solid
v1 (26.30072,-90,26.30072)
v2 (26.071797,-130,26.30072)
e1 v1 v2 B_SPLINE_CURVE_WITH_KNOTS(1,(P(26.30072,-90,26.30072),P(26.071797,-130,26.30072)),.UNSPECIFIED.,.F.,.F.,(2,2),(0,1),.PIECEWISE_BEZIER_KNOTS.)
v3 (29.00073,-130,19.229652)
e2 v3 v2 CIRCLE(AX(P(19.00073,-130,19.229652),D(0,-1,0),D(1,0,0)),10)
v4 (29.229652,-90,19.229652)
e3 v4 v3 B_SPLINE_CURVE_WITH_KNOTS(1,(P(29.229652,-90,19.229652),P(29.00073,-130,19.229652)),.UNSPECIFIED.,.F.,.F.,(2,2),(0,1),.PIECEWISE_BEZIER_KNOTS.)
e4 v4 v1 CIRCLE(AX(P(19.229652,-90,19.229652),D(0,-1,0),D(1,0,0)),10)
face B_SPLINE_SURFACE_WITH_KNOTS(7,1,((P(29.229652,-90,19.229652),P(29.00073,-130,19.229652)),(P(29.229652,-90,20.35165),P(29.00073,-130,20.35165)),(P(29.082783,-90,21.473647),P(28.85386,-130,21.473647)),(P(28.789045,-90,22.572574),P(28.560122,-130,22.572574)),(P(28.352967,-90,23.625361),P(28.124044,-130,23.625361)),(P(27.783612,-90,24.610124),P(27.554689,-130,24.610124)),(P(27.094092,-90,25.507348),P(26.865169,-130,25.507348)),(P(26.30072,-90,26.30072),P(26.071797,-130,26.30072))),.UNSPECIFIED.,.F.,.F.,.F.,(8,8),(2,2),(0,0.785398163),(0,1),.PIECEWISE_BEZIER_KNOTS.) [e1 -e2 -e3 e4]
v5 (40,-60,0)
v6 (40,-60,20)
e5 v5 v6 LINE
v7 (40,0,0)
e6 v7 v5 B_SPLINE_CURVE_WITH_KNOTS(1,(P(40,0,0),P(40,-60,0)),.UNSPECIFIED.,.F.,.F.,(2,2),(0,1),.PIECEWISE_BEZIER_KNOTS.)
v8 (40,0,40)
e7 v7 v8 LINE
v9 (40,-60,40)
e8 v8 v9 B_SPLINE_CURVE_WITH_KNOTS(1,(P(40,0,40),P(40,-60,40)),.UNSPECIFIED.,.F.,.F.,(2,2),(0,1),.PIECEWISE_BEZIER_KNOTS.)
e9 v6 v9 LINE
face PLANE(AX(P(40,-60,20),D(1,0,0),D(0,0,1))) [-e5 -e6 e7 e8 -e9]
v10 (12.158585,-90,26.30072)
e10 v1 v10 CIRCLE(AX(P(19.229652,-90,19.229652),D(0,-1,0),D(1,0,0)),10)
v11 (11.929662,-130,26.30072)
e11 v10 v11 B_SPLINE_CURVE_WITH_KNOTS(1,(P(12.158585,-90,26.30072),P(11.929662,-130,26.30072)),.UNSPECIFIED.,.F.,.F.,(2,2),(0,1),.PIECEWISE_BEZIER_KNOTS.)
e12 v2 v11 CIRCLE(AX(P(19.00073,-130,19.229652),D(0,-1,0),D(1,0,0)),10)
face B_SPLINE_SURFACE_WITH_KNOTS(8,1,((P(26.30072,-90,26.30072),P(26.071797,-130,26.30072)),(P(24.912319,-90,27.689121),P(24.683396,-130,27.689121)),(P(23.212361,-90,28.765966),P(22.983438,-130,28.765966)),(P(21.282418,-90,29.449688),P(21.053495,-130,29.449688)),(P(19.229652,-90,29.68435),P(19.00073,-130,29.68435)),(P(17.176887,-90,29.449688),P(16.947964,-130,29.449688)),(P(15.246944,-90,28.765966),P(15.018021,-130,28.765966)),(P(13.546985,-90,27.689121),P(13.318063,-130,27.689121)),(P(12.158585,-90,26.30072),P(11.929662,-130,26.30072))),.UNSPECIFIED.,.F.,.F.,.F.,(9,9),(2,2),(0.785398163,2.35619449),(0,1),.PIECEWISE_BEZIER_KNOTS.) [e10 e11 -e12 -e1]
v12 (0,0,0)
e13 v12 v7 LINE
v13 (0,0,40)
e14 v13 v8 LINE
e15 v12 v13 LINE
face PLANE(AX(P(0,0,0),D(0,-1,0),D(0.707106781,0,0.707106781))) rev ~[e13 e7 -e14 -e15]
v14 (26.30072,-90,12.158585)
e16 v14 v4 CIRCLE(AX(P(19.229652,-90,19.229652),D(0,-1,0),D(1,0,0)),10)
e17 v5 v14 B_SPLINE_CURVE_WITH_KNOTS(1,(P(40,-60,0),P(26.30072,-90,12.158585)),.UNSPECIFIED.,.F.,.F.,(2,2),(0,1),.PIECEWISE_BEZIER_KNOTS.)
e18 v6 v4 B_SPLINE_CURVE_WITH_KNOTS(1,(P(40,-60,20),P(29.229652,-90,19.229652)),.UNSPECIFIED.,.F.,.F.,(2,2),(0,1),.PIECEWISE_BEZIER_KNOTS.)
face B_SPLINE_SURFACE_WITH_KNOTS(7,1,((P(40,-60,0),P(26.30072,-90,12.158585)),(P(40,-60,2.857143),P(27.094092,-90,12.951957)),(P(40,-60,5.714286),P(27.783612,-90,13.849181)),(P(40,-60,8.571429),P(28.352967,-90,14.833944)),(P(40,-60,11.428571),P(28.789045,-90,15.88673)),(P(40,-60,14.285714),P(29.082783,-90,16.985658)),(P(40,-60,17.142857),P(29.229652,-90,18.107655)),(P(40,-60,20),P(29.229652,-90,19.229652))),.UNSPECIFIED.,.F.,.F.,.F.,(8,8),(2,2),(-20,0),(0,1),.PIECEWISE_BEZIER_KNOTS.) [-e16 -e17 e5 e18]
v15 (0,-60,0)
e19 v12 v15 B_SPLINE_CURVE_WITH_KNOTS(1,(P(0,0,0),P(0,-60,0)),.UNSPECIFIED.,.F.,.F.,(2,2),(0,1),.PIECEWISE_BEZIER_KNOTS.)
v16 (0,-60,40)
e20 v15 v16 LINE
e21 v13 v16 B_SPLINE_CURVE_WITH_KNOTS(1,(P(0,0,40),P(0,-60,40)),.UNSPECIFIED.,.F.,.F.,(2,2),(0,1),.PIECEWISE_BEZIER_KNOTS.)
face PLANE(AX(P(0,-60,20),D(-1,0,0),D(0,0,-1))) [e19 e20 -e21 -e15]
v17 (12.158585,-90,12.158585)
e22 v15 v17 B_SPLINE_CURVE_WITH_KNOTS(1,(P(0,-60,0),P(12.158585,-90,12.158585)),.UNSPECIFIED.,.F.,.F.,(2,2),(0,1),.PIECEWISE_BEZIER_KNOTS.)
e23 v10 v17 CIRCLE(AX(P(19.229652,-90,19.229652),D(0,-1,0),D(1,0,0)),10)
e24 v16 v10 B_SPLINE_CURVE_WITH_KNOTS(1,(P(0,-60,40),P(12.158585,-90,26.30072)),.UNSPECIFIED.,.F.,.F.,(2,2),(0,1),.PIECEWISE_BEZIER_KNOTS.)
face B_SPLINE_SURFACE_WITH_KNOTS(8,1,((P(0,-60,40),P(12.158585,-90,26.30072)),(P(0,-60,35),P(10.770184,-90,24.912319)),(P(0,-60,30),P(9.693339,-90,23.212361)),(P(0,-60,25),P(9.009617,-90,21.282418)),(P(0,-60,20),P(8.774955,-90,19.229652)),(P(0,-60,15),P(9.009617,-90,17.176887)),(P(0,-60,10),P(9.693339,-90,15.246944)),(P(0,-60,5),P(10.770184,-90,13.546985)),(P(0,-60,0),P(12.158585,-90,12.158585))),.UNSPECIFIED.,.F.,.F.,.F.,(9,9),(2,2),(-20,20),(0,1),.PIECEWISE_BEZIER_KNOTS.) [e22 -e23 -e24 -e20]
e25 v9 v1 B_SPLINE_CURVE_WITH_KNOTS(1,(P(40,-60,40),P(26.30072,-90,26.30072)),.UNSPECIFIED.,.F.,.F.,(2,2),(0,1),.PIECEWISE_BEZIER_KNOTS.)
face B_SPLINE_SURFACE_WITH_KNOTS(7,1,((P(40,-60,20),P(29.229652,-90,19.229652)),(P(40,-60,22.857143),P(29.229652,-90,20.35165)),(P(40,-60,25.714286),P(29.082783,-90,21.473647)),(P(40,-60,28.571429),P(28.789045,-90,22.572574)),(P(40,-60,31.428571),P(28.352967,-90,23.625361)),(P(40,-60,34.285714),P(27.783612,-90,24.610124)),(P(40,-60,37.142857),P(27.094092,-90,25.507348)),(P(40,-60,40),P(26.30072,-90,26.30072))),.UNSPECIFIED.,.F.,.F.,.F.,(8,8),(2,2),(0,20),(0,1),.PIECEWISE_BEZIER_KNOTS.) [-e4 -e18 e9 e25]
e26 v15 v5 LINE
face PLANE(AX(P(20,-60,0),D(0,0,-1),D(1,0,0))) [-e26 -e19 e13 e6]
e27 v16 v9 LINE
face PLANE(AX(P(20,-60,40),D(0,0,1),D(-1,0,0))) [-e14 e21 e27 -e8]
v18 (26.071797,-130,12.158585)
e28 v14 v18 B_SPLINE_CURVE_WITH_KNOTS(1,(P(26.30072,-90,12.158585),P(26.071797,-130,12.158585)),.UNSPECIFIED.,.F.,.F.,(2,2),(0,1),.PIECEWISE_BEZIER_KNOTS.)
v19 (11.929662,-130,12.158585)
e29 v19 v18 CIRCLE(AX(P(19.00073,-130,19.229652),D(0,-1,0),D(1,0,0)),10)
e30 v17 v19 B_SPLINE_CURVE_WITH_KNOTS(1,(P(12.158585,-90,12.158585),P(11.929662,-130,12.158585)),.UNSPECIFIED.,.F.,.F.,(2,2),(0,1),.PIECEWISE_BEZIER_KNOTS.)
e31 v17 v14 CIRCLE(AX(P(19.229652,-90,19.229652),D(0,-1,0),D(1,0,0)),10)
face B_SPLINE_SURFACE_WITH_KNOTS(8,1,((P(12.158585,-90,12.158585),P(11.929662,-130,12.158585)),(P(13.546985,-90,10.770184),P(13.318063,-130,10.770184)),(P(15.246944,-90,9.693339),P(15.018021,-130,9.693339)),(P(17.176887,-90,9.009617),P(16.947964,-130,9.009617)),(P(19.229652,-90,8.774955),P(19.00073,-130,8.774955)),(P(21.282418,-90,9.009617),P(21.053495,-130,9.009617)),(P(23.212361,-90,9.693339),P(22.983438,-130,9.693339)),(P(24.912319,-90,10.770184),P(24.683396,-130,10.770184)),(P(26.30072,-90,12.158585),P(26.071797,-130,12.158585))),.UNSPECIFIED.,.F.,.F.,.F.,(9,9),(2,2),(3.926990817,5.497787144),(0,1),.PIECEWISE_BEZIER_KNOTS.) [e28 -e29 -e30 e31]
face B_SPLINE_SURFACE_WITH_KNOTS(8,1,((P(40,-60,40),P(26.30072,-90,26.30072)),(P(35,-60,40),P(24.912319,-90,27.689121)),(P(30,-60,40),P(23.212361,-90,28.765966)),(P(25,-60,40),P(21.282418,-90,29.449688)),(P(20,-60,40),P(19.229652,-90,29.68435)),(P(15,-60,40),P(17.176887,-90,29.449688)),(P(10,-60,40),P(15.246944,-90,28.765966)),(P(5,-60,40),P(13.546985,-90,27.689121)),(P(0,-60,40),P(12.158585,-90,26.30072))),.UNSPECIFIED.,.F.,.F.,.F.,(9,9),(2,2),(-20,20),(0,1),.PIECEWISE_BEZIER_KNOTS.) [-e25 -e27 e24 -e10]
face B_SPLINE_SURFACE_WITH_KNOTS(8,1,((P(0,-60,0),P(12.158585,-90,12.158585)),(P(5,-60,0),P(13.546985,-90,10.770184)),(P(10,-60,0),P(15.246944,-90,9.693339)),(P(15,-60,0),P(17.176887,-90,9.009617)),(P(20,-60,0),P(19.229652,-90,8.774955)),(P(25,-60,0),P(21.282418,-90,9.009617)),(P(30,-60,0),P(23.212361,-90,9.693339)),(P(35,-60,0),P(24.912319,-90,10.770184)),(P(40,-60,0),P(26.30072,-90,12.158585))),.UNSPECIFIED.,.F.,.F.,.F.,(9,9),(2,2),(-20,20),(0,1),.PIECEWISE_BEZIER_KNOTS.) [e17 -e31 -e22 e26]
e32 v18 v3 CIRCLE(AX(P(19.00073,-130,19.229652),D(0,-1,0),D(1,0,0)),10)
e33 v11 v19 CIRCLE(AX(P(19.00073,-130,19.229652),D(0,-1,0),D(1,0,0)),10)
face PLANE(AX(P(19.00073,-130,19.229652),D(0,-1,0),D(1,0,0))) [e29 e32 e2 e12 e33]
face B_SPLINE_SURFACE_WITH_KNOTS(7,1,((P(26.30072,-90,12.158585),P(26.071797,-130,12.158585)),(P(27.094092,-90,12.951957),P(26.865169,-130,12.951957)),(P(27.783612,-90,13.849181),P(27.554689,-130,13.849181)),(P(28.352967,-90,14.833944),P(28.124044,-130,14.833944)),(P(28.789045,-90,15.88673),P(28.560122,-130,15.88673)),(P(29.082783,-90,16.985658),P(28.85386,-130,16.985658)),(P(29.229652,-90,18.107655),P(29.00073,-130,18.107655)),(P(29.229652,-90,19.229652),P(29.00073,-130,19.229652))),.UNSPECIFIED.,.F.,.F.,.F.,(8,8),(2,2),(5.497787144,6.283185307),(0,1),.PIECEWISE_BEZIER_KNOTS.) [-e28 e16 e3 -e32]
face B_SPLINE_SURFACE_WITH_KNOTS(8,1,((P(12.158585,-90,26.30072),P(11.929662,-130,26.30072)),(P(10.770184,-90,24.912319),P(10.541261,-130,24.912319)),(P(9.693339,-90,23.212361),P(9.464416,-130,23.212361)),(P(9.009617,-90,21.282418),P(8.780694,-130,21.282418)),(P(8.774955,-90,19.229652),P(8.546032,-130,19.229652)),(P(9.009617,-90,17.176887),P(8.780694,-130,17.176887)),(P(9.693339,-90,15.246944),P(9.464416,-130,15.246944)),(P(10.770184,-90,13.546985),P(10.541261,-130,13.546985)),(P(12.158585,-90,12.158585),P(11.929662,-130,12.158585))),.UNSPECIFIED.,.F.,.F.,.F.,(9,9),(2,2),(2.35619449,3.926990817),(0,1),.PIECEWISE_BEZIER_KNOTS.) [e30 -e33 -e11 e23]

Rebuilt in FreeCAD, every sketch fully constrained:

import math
import FreeCAD as App
import Part
import Sketcher

V = App.Vector


def add_polygon(sketch, points):
    """Adds a closed chain of lines whose ends are joined by coincident constraints."""
    first, n = sketch.GeometryCount, len(points)
    for a, b in zip(points, points[1:] + points[:1]):
        sketch.addGeometry(Part.LineSegment(App.Vector(*a, 0), App.Vector(*b, 0)), False)
    for i in range(n):
        sketch.addConstraint(Sketcher.Constraint("Coincident", first + i, 2, first + (i + 1) % n, 1))

doc = App.newDocument("Part")
body = doc.addObject("PartDesign::Body", "Body")

# Sketch on XZ plane
sketch1 = body.newObject("Sketcher::SketchObject", "Sketch")
sketch1.AttachmentSupport = (doc.getObject("XZ_Plane"), [""])
sketch1.MapMode = "FlatFace"
add_polygon(sketch1, [(0, 40), (0, 0), (40, 0), (40, 40)])  # lines 0-3
sketch1.addConstraint([
    Sketcher.Constraint("Vertical", 0),
    Sketcher.Constraint("Horizontal", 1),
    Sketcher.Constraint("Vertical", 2),
    Sketcher.Constraint("Horizontal", 3),
    Sketcher.Constraint("Coincident", 0, 2, -1, 1),
    Sketcher.Constraint("Equal", 3, 0),
    Sketcher.Constraint("DistanceX", 1, 1, 1, 2, 40.0),
])

# Sketch on XZ plane
sketch2 = body.newObject("Sketcher::SketchObject", "Sketch001")
sketch2.AttachmentSupport = (doc.getObject("XZ_Plane"), [""])
sketch2.MapMode = "FlatFace"
sketch2.AttachmentOffset = App.Placement(V(0, 0, 60), App.Rotation())
add_polygon(sketch2, [(0, 40), (0, 0), (40, 0), (40, 40)])  # lines 0-3
sketch2.addConstraint([
    Sketcher.Constraint("Vertical", 0),
    Sketcher.Constraint("Horizontal", 1),
    Sketcher.Constraint("Vertical", 2),
    Sketcher.Constraint("Horizontal", 3),
    Sketcher.Constraint("Coincident", 0, 2, -1, 1),
    Sketcher.Constraint("Equal", 3, 0),
    Sketcher.Constraint("DistanceX", 1, 1, 1, 2, 40.0),
])

additiveloft = body.newObject("PartDesign::AdditiveLoft", "AdditiveLoft")
additiveloft.Profile = sketch1
additiveloft.Sections = [sketch2]

# Sketch on XZ plane
sketch3 = body.newObject("Sketcher::SketchObject", "Sketch002")
sketch3.AttachmentSupport = (doc.getObject("XZ_Plane"), [""])
sketch3.MapMode = "FlatFace"
sketch3.AttachmentOffset = App.Placement(V(0, 0, 60), App.Rotation())
add_polygon(sketch3, [(0, 40), (0, 0), (40, 0), (40, 40)])  # lines 0-3
sketch3.addConstraint([
    Sketcher.Constraint("Vertical", 0),
    Sketcher.Constraint("Horizontal", 1),
    Sketcher.Constraint("Vertical", 2),
    Sketcher.Constraint("Horizontal", 3),
    Sketcher.Constraint("Coincident", 0, 2, -1, 1),
    Sketcher.Constraint("Equal", 3, 0),
    Sketcher.Constraint("DistanceX", 1, 1, 1, 2, 40.0),
])

# Sketch on XZ plane
sketch4 = body.newObject("Sketcher::SketchObject", "Sketch003")
sketch4.AttachmentSupport = (doc.getObject("XZ_Plane"), [""])
sketch4.MapMode = "FlatFace"
sketch4.AttachmentOffset = App.Placement(V(0, 0, 90), App.Rotation())
sketch4.addGeometry(Part.Circle(V(19.229652, 19.229652, 0), V(0, 0, 1), 10), False)
sketch4.addConstraint([
    Sketcher.Constraint("Diameter", 0, 20.0),
    Sketcher.Constraint("DistanceX", -1, 1, 0, 3, 19.229652),
    Sketcher.Constraint("DistanceY", -1, 1, 0, 3, 19.229652),
])

additiveloft2 = body.newObject("PartDesign::AdditiveLoft", "AdditiveLoft001")
additiveloft2.Profile = sketch3
additiveloft2.Sections = [sketch4]

# Sketch on XZ plane
sketch5 = body.newObject("Sketcher::SketchObject", "Sketch004")
sketch5.AttachmentSupport = (doc.getObject("XZ_Plane"), [""])
sketch5.MapMode = "FlatFace"
sketch5.AttachmentOffset = App.Placement(V(0, 0, 90), App.Rotation())
sketch5.addGeometry([
    Part.ArcOfCircle(Part.Circle(V(19.229652, 19.229652, 0), V(0, 0, 1), 10), math.radians(135), math.radians(225)),  # 0
    Part.ArcOfCircle(Part.Circle(V(19.229652, 19.229652, 0), V(0, 0, 1), 10), math.radians(-135), math.radians(-45)),  # 1
    Part.ArcOfCircle(Part.Circle(V(19.229652, 19.229652, 0), V(0, 0, 1), 10), math.radians(-45), math.radians(0)),  # 2
    Part.ArcOfCircle(Part.Circle(V(19.229652, 19.229652, 0), V(0, 0, 1), 10), math.radians(0), math.radians(45)),  # 3
    Part.ArcOfCircle(Part.Circle(V(19.229652, 19.229652, 0), V(0, 0, 1), 10), math.radians(45), math.radians(135)),  # 4
], False)
sketch5.addConstraint([
    Sketcher.Constraint("Tangent", 0, 2, 1, 1),
    Sketcher.Constraint("Tangent", 1, 2, 2, 1),
    Sketcher.Constraint("Tangent", 2, 2, 3, 1),
    Sketcher.Constraint("Tangent", 3, 2, 4, 1),
    Sketcher.Constraint("Tangent", 4, 2, 0, 1),
    Sketcher.Constraint("Coincident", 2, 3, 0, 3),
    Sketcher.Constraint("Horizontal", 0, 2, 1, 2),
    Sketcher.Constraint("Horizontal", 4, 3, 2, 2),
    Sketcher.Constraint("Horizontal", 3, 2, 4, 2),
    Sketcher.Constraint("Vertical", 1, 2, 3, 2),
    Sketcher.Constraint("Radius", 0, 10.0),
    Sketcher.Constraint("DistanceX", -1, 1, 1, 2, 26.30072),
    Sketcher.Constraint("DistanceY", -1, 1, 3, 2, 26.30072),
    Sketcher.Constraint("DistanceX", -1, 1, 0, 3, 19.229652),
])

# Sketch on XZ plane
sketch6 = body.newObject("Sketcher::SketchObject", "Sketch005")
sketch6.AttachmentSupport = (doc.getObject("XZ_Plane"), [""])
sketch6.MapMode = "FlatFace"
sketch6.AttachmentOffset = App.Placement(V(0, 0, 130), App.Rotation())
sketch6.addGeometry(Part.Circle(V(19.00073, 19.229652, 0), V(0, 0, 1), 10), False)
sketch6.addConstraint([
    Sketcher.Constraint("Diameter", 0, 20.0),
    Sketcher.Constraint("DistanceX", -1, 1, 0, 3, 19.00073),
    Sketcher.Constraint("DistanceY", -1, 1, 0, 3, 19.229652),
])

additiveloft3 = body.newObject("PartDesign::AdditiveLoft", "AdditiveLoft002")
additiveloft3.Profile = sketch5
additiveloft3.Sections = [sketch6]

doc.recompute()
